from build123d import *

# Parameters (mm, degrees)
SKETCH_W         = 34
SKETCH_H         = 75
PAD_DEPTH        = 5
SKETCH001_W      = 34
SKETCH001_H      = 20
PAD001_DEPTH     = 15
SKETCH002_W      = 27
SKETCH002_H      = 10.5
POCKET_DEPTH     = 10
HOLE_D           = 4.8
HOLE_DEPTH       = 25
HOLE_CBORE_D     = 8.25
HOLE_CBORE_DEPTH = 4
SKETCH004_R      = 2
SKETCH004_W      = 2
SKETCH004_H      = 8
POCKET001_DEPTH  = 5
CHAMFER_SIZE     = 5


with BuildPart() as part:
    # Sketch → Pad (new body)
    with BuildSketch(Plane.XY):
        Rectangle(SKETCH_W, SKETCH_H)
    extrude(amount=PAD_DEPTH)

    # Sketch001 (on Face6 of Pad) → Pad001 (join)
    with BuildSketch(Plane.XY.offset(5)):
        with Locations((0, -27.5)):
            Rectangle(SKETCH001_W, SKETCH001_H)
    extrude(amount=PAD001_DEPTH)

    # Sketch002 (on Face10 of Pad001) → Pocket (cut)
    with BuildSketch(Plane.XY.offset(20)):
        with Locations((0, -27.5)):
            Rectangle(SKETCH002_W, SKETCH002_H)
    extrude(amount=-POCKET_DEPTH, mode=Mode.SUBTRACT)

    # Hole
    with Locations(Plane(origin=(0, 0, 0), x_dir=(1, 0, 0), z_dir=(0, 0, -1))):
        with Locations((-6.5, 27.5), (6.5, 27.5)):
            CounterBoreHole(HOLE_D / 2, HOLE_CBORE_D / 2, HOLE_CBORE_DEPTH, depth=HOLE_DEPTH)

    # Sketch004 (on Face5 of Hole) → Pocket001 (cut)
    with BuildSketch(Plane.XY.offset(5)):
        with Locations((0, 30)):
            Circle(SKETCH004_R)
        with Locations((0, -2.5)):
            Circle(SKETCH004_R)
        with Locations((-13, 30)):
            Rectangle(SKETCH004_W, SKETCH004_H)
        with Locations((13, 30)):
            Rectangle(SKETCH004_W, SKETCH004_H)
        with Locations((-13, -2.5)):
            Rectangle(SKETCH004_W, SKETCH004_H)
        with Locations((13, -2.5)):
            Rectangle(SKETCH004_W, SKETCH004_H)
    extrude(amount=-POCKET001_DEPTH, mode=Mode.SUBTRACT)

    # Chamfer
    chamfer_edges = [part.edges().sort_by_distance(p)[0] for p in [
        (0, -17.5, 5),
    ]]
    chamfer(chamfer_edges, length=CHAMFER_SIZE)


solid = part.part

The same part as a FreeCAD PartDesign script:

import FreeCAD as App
import Part
import Sketcher
from FreeCAD import Vector
Q = App.Units.Quantity


def edges_at(feature, points):
    """Names of the edges that pass closest to the given points."""
    edges = feature.Shape.Edges
    near = lambda p: min(range(len(edges)), key=lambda i: edges[i].distToShape(Part.Vertex(*p))[0])
    return sorted({f"Edge{near(p) + 1}" for p in points})

doc = App.newDocument("Part")
body = doc.addObject("PartDesign::Body", "Body")

sketch1 = body.newObject("Sketcher::SketchObject", "Sketch")
sketch1.AttachmentSupport = (doc.getObject("XY_Plane"), [""])
sketch1.MapMode = "FlatFace"
sketch1.addGeometry(Part.LineSegment(Vector(-17, 37.5, 0), Vector(-17, -37.5, 0)), False)
sketch1.addGeometry(Part.LineSegment(Vector(-17, -37.5, 0), Vector(17, -37.5, 0)), False)
sketch1.addGeometry(Part.LineSegment(Vector(17, -37.5, 0), Vector(17, 37.5, 0)), False)
sketch1.addGeometry(Part.LineSegment(Vector(17, 37.5, 0), Vector(-17, 37.5, 0)), False)
sketch1.addConstraint(Sketcher.Constraint("Coincident", 0, 2, 1, 1))
sketch1.addConstraint(Sketcher.Constraint("Coincident", 1, 2, 2, 1))
sketch1.addConstraint(Sketcher.Constraint("Coincident", 2, 2, 3, 1))
sketch1.addConstraint(Sketcher.Constraint("Coincident", 3, 2, 0, 1))
sketch1.addConstraint(Sketcher.Constraint("Vertical", 0))
sketch1.addConstraint(Sketcher.Constraint("Horizontal", 1))
sketch1.addConstraint(Sketcher.Constraint("Vertical", 2))
sketch1.addConstraint(Sketcher.Constraint("Horizontal", 3))
sketch1.addConstraint(Sketcher.Constraint("Symmetric", 0, 2, 2, 2, -1, 1))
sketch1.addConstraint(Sketcher.Constraint("DistanceX", 1, 1, 1, 2, Q("34 mm")))
sketch1.addConstraint(Sketcher.Constraint("DistanceY", 0, 2, 0, 1, Q("75 mm")))
pad1 = body.newObject("PartDesign::Pad", "Pad")
pad1.Profile = sketch1
pad1.Length = 5

sketch2 = body.newObject("Sketcher::SketchObject", "Sketch001")
sketch2.AttachmentSupport = (doc.getObject("XY_Plane"), [""])
sketch2.MapMode = "FlatFace"
sketch2.AttachmentOffset = App.Placement(Vector(0, 0, 5), App.Rotation())
sketch2.addGeometry(Part.LineSegment(Vector(-17, -17.5, 0), Vector(-17, -37.5, 0)), False)
sketch2.addGeometry(Part.LineSegment(Vector(-17, -37.5, 0), Vector(17, -37.5, 0)), False)
sketch2.addGeometry(Part.LineSegment(Vector(17, -37.5, 0), Vector(17, -17.5, 0)), False)
sketch2.addGeometry(Part.LineSegment(Vector(17, -17.5, 0), Vector(-17, -17.5, 0)), False)
sketch2.addConstraint(Sketcher.Constraint("Coincident", 0, 2, 1, 1))
sketch2.addConstraint(Sketcher.Constraint("Coincident", 1, 2, 2, 1))
sketch2.addConstraint(Sketcher.Constraint("Coincident", 2, 2, 3, 1))
sketch2.addConstraint(Sketcher.Constraint("Coincident", 3, 2, 0, 1))
sketch2.addConstraint(Sketcher.Constraint("Vertical", 0))
sketch2.addConstraint(Sketcher.Constraint("Horizontal", 1))
sketch2.addConstraint(Sketcher.Constraint("Vertical", 2))
sketch2.addConstraint(Sketcher.Constraint("Horizontal", 3))
sketch2.addConstraint(Sketcher.Constraint("DistanceX", 1, 1, 1, 2, Q("34 mm")))
sketch2.addConstraint(Sketcher.Constraint("DistanceY", 0, 2, 0, 1, Q("20 mm")))
sketch2.addConstraint(Sketcher.Constraint("DistanceX", 0, 2, -1, 1, Q("17 mm")))
sketch2.addConstraint(Sketcher.Constraint("DistanceY", 0, 2, -1, 1, Q("37.5 mm")))
pad2 = body.newObject("PartDesign::Pad", "Pad001")
pad2.Profile = sketch2
pad2.Length = 15

sketch3 = body.newObject("Sketcher::SketchObject", "Sketch002")
sketch3.AttachmentSupport = (doc.getObject("XY_Plane"), [""])
sketch3.MapMode = "FlatFace"
sketch3.AttachmentOffset = App.Placement(Vector(0, 0, 20), App.Rotation())
sketch3.addGeometry(Part.LineSegment(Vector(-13.5, -22.25, 0), Vector(-13.5, -32.75, 0)), False)
sketch3.addGeometry(Part.LineSegment(Vector(-13.5, -32.75, 0), Vector(13.5, -32.75, 0)), False)
sketch3.addGeometry(Part.LineSegment(Vector(13.5, -32.75, 0), Vector(13.5, -22.25, 0)), False)
sketch3.addGeometry(Part.LineSegment(Vector(13.5, -22.25, 0), Vector(-13.5, -22.25, 0)), False)
sketch3.addConstraint(Sketcher.Constraint("Coincident", 0, 2, 1, 1))
sketch3.addConstraint(Sketcher.Constraint("Coincident", 1, 2, 2, 1))
sketch3.addConstraint(Sketcher.Constraint("Coincident", 2, 2, 3, 1))
sketch3.addConstraint(Sketcher.Constraint("Coincident", 3, 2, 0, 1))
sketch3.addConstraint(Sketcher.Constraint("Vertical", 0))
sketch3.addConstraint(Sketcher.Constraint("Horizontal", 1))
sketch3.addConstraint(Sketcher.Constraint("Vertical", 2))
sketch3.addConstraint(Sketcher.Constraint("Horizontal", 3))
sketch3.addConstraint(Sketcher.Constraint("DistanceX", 1, 1, 1, 2, Q("27 mm")))
sketch3.addConstraint(Sketcher.Constraint("DistanceY", 0, 2, 0, 1, Q("10.5 mm")))
sketch3.addConstraint(Sketcher.Constraint("DistanceX", 0, 2, -1, 1, Q("13.5 mm")))
sketch3.addConstraint(Sketcher.Constraint("DistanceY", 0, 2, -1, 1, Q("32.75 mm")))
pocket1 = body.newObject("PartDesign::Pocket", "Pocket")
pocket1.Profile = sketch3
pocket1.Length = 10

sketch4 = body.newObject("Sketcher::SketchObject", "Sketch003")
sketch4.AttachmentSupport = (doc.getObject("XY_Plane"), [""])
sketch4.MapMode = "FlatFace"
sketch4.addGeometry(Part.Circle(Vector(-6.5, -27.5, 0), Vector(0, 0, 1), 2.4), False)
sketch4.addGeometry(Part.Circle(Vector(6.5, -27.5, 0), Vector(0, 0, 1), 2.4), False)
sketch4.addConstraint(Sketcher.Constraint("Equal", 0, 1))
sketch4.addConstraint(Sketcher.Constraint("Symmetric", 0, 3, 1, 3, -2))
sketch4.addConstraint(Sketcher.Constraint("Diameter", 0, Q("4.8 mm")))
sketch4.addConstraint(Sketcher.Constraint("DistanceX", 0, 3, 1, 3, Q("13 mm")))
sketch4.addConstraint(Sketcher.Constraint("DistanceY", 0, 3, -1, 1, Q("27.5 mm")))
doc.recompute()
hole = body.newObject("PartDesign::Hole", "Hole")
hole.Profile = sketch4
hole.ThreadType = "None"
hole.Diameter = 4.8
hole.DepthType = "Dimension"
hole.Depth = 25
hole.DrillPoint = "Flat"
hole.HoleCutType = "Counterbore"
hole.HoleCutDiameter = 8.25
hole.HoleCutDepth = 4
hole.Reversed = True

sketch5 = body.newObject("Sketcher::SketchObject", "Sketch004")
sketch5.AttachmentSupport = (doc.getObject("XY_Plane"), [""])
sketch5.MapMode = "FlatFace"
sketch5.AttachmentOffset = App.Placement(Vector(0, 0, 5), App.Rotation())
sketch5.addGeometry(Part.Circle(Vector(0, 30, 0), Vector(0, 0, 1), 2), False)
sketch5.addGeometry(Part.Circle(Vector(0, -2.5, 0), Vector(0, 0, 1), 2), False)
sketch5.addGeometry(Part.LineSegment(Vector(-14, 34, 0), Vector(-14, 26, 0)), False)
sketch5.addGeometry(Part.LineSegment(Vector(-14, 26, 0), Vector(-12, 26, 0)), False)
sketch5.addGeometry(Part.LineSegment(Vector(-12, 26, 0), Vector(-12, 34, 0)), False)
sketch5.addGeometry(Part.LineSegment(Vector(-12, 34, 0), Vector(-14, 34, 0)), False)
sketch5.addGeometry(Part.LineSegment(Vector(12, 34, 0), Vector(12, 26, 0)), False)
sketch5.addGeometry(Part.LineSegment(Vector(12, 26, 0), Vector(14, 26, 0)), False)
sketch5.addGeometry(Part.LineSegment(Vector(14, 26, 0), Vector(14, 34, 0)), False)
sketch5.addGeometry(Part.LineSegment(Vector(14, 34, 0), Vector(12, 34, 0)), False)
sketch5.addGeometry(Part.LineSegment(Vector(-14, 1.5, 0), Vector(-14, -6.5, 0)), False)
sketch5.addGeometry(Part.LineSegment(Vector(-14, -6.5, 0), Vector(-12, -6.5, 0)), False)
sketch5.addGeometry(Part.LineSegment(Vector(-12, -6.5, 0), Vector(-12, 1.5, 0)), False)
sketch5.addGeometry(Part.LineSegment(Vector(-12, 1.5, 0), Vector(-14, 1.5, 0)), False)
sketch5.addGeometry(Part.LineSegment(Vector(12, 1.5, 0), Vector(12, -6.5, 0)), False)
sketch5.addGeometry(Part.LineSegment(Vector(12, -6.5, 0), Vector(14, -6.5, 0)), False)
sketch5.addGeometry(Part.LineSegment(Vector(14, -6.5, 0), Vector(14, 1.5, 0)), False)
sketch5.addGeometry(Part.LineSegment(Vector(14, 1.5, 0), Vector(12, 1.5, 0)), False)
sketch5.addConstraint(Sketcher.Constraint("Coincident", 2, 2, 3, 1))
sketch5.addConstraint(Sketcher.Constraint("Coincident", 3, 2, 4, 1))
sketch5.addConstraint(Sketcher.Constraint("Coincident", 4, 2, 5, 1))
sketch5.addConstraint(Sketcher.Constraint("Coincident", 5, 2, 2, 1))
sketch5.addConstraint(Sketcher.Constraint("Coincident", 6, 2, 7, 1))
sketch5.addConstraint(Sketcher.Constraint("Coincident", 7, 2, 8, 1))
sketch5.addConstraint(Sketcher.Constraint("Coincident", 8, 2, 9, 1))
sketch5.addConstraint(Sketcher.Constraint("Coincident", 9, 2, 6, 1))
sketch5.addConstraint(Sketcher.Constraint("Coincident", 10, 2, 11, 1))
sketch5.addConstraint(Sketcher.Constraint("Coincident", 11, 2, 12, 1))
sketch5.addConstraint(Sketcher.Constraint("Coincident", 12, 2, 13, 1))
sketch5.addConstraint(Sketcher.Constraint("Coincident", 13, 2, 10, 1))
sketch5.addConstraint(Sketcher.Constraint("Coincident", 14, 2, 15, 1))
sketch5.addConstraint(Sketcher.Constraint("Coincident", 15, 2, 16, 1))
sketch5.addConstraint(Sketcher.Constraint("Coincident", 16, 2, 17, 1))
sketch5.addConstraint(Sketcher.Constraint("Coincident", 17, 2, 14, 1))
sketch5.addConstraint(Sketcher.Constraint("Vertical", 2))
sketch5.addConstraint(Sketcher.Constraint("Horizontal", 3))
sketch5.addConstraint(Sketcher.Constraint("Vertical", 4))
sketch5.addConstraint(Sketcher.Constraint("Horizontal", 5))
sketch5.addConstraint(Sketcher.Constraint("Vertical", 6))
sketch5.addConstraint(Sketcher.Constraint("Horizontal", 7))
sketch5.addConstraint(Sketcher.Constraint("Vertical", 8))
sketch5.addConstraint(Sketcher.Constraint("Horizontal", 9))
sketch5.addConstraint(Sketcher.Constraint("Vertical", 10))
sketch5.addConstraint(Sketcher.Constraint("Horizontal", 11))
sketch5.addConstraint(Sketcher.Constraint("Vertical", 12))
sketch5.addConstraint(Sketcher.Constraint("Horizontal", 13))
sketch5.addConstraint(Sketcher.Constraint("Vertical", 14))
sketch5.addConstraint(Sketcher.Constraint("Horizontal", 15))
sketch5.addConstraint(Sketcher.Constraint("Vertical", 16))
sketch5.addConstraint(Sketcher.Constraint("Horizontal", 17))
sketch5.addConstraint(Sketcher.Constraint("Equal", 0, 1))
sketch5.addConstraint(Sketcher.Constraint("Symmetric", 3, 2, 6, 2, -2))
sketch5.addConstraint(Sketcher.Constraint("Symmetric", 5, 2, 8, 2, -2))
sketch5.addConstraint(Sketcher.Constraint("Symmetric", 11, 2, 14, 2, -2))
sketch5.addConstraint(Sketcher.Constraint("Symmetric", 13, 2, 16, 2, -2))
sketch5.addConstraint(Sketcher.Constraint("PointOnObject", 0, 3, -2))
sketch5.addConstraint(Sketcher.Constraint("PointOnObject", 1, 3, -2))
sketch5.addConstraint(Sketcher.Constraint("Vertical", 5, 2, 10, 2))
sketch5.addConstraint(Sketcher.Constraint("Vertical", 4, 2, 11, 2))
sketch5.addConstraint(Sketcher.Constraint("Equal", 8, 10))
sketch5.addConstraint(Sketcher.Constraint("Diameter", 0, Q("4 mm")))
sketch5.addConstraint(Sketcher.Constraint("DistanceX", 3, 1, 3, 2, Q("2 mm")))
sketch5.addConstraint(Sketcher.Constraint("DistanceY", 2, 2, 2, 1, Q("8 mm")))
sketch5.addConstraint(Sketcher.Constraint("DistanceY", -1, 1, 0, 3, Q("30 mm")))
sketch5.addConstraint(Sketcher.Constraint("DistanceX", 2, 2, -1, 1, Q("14 mm")))
sketch5.addConstraint(Sketcher.Constraint("DistanceY", -1, 1, 2, 2, Q("26 mm")))
sketch5.addConstraint(Sketcher.Constraint("DistanceY", 10, 2, 1, 3, Q("4 mm")))
sketch5.addConstraint(Sketcher.Constraint("DistanceY", 1, 3, -1, 1, Q("2.5 mm")))
pocket2 = body.newObject("PartDesign::Pocket", "Pocket001")
pocket2.Profile = sketch5
pocket2.Length = 5
doc.recompute()

chamfer = body.newObject("PartDesign::Chamfer", "Chamfer")
chamfer.Base = (pocket2, edges_at(pocket2, [(0, -17.5, 5)]))
chamfer.Size = 5

doc.recompute()
